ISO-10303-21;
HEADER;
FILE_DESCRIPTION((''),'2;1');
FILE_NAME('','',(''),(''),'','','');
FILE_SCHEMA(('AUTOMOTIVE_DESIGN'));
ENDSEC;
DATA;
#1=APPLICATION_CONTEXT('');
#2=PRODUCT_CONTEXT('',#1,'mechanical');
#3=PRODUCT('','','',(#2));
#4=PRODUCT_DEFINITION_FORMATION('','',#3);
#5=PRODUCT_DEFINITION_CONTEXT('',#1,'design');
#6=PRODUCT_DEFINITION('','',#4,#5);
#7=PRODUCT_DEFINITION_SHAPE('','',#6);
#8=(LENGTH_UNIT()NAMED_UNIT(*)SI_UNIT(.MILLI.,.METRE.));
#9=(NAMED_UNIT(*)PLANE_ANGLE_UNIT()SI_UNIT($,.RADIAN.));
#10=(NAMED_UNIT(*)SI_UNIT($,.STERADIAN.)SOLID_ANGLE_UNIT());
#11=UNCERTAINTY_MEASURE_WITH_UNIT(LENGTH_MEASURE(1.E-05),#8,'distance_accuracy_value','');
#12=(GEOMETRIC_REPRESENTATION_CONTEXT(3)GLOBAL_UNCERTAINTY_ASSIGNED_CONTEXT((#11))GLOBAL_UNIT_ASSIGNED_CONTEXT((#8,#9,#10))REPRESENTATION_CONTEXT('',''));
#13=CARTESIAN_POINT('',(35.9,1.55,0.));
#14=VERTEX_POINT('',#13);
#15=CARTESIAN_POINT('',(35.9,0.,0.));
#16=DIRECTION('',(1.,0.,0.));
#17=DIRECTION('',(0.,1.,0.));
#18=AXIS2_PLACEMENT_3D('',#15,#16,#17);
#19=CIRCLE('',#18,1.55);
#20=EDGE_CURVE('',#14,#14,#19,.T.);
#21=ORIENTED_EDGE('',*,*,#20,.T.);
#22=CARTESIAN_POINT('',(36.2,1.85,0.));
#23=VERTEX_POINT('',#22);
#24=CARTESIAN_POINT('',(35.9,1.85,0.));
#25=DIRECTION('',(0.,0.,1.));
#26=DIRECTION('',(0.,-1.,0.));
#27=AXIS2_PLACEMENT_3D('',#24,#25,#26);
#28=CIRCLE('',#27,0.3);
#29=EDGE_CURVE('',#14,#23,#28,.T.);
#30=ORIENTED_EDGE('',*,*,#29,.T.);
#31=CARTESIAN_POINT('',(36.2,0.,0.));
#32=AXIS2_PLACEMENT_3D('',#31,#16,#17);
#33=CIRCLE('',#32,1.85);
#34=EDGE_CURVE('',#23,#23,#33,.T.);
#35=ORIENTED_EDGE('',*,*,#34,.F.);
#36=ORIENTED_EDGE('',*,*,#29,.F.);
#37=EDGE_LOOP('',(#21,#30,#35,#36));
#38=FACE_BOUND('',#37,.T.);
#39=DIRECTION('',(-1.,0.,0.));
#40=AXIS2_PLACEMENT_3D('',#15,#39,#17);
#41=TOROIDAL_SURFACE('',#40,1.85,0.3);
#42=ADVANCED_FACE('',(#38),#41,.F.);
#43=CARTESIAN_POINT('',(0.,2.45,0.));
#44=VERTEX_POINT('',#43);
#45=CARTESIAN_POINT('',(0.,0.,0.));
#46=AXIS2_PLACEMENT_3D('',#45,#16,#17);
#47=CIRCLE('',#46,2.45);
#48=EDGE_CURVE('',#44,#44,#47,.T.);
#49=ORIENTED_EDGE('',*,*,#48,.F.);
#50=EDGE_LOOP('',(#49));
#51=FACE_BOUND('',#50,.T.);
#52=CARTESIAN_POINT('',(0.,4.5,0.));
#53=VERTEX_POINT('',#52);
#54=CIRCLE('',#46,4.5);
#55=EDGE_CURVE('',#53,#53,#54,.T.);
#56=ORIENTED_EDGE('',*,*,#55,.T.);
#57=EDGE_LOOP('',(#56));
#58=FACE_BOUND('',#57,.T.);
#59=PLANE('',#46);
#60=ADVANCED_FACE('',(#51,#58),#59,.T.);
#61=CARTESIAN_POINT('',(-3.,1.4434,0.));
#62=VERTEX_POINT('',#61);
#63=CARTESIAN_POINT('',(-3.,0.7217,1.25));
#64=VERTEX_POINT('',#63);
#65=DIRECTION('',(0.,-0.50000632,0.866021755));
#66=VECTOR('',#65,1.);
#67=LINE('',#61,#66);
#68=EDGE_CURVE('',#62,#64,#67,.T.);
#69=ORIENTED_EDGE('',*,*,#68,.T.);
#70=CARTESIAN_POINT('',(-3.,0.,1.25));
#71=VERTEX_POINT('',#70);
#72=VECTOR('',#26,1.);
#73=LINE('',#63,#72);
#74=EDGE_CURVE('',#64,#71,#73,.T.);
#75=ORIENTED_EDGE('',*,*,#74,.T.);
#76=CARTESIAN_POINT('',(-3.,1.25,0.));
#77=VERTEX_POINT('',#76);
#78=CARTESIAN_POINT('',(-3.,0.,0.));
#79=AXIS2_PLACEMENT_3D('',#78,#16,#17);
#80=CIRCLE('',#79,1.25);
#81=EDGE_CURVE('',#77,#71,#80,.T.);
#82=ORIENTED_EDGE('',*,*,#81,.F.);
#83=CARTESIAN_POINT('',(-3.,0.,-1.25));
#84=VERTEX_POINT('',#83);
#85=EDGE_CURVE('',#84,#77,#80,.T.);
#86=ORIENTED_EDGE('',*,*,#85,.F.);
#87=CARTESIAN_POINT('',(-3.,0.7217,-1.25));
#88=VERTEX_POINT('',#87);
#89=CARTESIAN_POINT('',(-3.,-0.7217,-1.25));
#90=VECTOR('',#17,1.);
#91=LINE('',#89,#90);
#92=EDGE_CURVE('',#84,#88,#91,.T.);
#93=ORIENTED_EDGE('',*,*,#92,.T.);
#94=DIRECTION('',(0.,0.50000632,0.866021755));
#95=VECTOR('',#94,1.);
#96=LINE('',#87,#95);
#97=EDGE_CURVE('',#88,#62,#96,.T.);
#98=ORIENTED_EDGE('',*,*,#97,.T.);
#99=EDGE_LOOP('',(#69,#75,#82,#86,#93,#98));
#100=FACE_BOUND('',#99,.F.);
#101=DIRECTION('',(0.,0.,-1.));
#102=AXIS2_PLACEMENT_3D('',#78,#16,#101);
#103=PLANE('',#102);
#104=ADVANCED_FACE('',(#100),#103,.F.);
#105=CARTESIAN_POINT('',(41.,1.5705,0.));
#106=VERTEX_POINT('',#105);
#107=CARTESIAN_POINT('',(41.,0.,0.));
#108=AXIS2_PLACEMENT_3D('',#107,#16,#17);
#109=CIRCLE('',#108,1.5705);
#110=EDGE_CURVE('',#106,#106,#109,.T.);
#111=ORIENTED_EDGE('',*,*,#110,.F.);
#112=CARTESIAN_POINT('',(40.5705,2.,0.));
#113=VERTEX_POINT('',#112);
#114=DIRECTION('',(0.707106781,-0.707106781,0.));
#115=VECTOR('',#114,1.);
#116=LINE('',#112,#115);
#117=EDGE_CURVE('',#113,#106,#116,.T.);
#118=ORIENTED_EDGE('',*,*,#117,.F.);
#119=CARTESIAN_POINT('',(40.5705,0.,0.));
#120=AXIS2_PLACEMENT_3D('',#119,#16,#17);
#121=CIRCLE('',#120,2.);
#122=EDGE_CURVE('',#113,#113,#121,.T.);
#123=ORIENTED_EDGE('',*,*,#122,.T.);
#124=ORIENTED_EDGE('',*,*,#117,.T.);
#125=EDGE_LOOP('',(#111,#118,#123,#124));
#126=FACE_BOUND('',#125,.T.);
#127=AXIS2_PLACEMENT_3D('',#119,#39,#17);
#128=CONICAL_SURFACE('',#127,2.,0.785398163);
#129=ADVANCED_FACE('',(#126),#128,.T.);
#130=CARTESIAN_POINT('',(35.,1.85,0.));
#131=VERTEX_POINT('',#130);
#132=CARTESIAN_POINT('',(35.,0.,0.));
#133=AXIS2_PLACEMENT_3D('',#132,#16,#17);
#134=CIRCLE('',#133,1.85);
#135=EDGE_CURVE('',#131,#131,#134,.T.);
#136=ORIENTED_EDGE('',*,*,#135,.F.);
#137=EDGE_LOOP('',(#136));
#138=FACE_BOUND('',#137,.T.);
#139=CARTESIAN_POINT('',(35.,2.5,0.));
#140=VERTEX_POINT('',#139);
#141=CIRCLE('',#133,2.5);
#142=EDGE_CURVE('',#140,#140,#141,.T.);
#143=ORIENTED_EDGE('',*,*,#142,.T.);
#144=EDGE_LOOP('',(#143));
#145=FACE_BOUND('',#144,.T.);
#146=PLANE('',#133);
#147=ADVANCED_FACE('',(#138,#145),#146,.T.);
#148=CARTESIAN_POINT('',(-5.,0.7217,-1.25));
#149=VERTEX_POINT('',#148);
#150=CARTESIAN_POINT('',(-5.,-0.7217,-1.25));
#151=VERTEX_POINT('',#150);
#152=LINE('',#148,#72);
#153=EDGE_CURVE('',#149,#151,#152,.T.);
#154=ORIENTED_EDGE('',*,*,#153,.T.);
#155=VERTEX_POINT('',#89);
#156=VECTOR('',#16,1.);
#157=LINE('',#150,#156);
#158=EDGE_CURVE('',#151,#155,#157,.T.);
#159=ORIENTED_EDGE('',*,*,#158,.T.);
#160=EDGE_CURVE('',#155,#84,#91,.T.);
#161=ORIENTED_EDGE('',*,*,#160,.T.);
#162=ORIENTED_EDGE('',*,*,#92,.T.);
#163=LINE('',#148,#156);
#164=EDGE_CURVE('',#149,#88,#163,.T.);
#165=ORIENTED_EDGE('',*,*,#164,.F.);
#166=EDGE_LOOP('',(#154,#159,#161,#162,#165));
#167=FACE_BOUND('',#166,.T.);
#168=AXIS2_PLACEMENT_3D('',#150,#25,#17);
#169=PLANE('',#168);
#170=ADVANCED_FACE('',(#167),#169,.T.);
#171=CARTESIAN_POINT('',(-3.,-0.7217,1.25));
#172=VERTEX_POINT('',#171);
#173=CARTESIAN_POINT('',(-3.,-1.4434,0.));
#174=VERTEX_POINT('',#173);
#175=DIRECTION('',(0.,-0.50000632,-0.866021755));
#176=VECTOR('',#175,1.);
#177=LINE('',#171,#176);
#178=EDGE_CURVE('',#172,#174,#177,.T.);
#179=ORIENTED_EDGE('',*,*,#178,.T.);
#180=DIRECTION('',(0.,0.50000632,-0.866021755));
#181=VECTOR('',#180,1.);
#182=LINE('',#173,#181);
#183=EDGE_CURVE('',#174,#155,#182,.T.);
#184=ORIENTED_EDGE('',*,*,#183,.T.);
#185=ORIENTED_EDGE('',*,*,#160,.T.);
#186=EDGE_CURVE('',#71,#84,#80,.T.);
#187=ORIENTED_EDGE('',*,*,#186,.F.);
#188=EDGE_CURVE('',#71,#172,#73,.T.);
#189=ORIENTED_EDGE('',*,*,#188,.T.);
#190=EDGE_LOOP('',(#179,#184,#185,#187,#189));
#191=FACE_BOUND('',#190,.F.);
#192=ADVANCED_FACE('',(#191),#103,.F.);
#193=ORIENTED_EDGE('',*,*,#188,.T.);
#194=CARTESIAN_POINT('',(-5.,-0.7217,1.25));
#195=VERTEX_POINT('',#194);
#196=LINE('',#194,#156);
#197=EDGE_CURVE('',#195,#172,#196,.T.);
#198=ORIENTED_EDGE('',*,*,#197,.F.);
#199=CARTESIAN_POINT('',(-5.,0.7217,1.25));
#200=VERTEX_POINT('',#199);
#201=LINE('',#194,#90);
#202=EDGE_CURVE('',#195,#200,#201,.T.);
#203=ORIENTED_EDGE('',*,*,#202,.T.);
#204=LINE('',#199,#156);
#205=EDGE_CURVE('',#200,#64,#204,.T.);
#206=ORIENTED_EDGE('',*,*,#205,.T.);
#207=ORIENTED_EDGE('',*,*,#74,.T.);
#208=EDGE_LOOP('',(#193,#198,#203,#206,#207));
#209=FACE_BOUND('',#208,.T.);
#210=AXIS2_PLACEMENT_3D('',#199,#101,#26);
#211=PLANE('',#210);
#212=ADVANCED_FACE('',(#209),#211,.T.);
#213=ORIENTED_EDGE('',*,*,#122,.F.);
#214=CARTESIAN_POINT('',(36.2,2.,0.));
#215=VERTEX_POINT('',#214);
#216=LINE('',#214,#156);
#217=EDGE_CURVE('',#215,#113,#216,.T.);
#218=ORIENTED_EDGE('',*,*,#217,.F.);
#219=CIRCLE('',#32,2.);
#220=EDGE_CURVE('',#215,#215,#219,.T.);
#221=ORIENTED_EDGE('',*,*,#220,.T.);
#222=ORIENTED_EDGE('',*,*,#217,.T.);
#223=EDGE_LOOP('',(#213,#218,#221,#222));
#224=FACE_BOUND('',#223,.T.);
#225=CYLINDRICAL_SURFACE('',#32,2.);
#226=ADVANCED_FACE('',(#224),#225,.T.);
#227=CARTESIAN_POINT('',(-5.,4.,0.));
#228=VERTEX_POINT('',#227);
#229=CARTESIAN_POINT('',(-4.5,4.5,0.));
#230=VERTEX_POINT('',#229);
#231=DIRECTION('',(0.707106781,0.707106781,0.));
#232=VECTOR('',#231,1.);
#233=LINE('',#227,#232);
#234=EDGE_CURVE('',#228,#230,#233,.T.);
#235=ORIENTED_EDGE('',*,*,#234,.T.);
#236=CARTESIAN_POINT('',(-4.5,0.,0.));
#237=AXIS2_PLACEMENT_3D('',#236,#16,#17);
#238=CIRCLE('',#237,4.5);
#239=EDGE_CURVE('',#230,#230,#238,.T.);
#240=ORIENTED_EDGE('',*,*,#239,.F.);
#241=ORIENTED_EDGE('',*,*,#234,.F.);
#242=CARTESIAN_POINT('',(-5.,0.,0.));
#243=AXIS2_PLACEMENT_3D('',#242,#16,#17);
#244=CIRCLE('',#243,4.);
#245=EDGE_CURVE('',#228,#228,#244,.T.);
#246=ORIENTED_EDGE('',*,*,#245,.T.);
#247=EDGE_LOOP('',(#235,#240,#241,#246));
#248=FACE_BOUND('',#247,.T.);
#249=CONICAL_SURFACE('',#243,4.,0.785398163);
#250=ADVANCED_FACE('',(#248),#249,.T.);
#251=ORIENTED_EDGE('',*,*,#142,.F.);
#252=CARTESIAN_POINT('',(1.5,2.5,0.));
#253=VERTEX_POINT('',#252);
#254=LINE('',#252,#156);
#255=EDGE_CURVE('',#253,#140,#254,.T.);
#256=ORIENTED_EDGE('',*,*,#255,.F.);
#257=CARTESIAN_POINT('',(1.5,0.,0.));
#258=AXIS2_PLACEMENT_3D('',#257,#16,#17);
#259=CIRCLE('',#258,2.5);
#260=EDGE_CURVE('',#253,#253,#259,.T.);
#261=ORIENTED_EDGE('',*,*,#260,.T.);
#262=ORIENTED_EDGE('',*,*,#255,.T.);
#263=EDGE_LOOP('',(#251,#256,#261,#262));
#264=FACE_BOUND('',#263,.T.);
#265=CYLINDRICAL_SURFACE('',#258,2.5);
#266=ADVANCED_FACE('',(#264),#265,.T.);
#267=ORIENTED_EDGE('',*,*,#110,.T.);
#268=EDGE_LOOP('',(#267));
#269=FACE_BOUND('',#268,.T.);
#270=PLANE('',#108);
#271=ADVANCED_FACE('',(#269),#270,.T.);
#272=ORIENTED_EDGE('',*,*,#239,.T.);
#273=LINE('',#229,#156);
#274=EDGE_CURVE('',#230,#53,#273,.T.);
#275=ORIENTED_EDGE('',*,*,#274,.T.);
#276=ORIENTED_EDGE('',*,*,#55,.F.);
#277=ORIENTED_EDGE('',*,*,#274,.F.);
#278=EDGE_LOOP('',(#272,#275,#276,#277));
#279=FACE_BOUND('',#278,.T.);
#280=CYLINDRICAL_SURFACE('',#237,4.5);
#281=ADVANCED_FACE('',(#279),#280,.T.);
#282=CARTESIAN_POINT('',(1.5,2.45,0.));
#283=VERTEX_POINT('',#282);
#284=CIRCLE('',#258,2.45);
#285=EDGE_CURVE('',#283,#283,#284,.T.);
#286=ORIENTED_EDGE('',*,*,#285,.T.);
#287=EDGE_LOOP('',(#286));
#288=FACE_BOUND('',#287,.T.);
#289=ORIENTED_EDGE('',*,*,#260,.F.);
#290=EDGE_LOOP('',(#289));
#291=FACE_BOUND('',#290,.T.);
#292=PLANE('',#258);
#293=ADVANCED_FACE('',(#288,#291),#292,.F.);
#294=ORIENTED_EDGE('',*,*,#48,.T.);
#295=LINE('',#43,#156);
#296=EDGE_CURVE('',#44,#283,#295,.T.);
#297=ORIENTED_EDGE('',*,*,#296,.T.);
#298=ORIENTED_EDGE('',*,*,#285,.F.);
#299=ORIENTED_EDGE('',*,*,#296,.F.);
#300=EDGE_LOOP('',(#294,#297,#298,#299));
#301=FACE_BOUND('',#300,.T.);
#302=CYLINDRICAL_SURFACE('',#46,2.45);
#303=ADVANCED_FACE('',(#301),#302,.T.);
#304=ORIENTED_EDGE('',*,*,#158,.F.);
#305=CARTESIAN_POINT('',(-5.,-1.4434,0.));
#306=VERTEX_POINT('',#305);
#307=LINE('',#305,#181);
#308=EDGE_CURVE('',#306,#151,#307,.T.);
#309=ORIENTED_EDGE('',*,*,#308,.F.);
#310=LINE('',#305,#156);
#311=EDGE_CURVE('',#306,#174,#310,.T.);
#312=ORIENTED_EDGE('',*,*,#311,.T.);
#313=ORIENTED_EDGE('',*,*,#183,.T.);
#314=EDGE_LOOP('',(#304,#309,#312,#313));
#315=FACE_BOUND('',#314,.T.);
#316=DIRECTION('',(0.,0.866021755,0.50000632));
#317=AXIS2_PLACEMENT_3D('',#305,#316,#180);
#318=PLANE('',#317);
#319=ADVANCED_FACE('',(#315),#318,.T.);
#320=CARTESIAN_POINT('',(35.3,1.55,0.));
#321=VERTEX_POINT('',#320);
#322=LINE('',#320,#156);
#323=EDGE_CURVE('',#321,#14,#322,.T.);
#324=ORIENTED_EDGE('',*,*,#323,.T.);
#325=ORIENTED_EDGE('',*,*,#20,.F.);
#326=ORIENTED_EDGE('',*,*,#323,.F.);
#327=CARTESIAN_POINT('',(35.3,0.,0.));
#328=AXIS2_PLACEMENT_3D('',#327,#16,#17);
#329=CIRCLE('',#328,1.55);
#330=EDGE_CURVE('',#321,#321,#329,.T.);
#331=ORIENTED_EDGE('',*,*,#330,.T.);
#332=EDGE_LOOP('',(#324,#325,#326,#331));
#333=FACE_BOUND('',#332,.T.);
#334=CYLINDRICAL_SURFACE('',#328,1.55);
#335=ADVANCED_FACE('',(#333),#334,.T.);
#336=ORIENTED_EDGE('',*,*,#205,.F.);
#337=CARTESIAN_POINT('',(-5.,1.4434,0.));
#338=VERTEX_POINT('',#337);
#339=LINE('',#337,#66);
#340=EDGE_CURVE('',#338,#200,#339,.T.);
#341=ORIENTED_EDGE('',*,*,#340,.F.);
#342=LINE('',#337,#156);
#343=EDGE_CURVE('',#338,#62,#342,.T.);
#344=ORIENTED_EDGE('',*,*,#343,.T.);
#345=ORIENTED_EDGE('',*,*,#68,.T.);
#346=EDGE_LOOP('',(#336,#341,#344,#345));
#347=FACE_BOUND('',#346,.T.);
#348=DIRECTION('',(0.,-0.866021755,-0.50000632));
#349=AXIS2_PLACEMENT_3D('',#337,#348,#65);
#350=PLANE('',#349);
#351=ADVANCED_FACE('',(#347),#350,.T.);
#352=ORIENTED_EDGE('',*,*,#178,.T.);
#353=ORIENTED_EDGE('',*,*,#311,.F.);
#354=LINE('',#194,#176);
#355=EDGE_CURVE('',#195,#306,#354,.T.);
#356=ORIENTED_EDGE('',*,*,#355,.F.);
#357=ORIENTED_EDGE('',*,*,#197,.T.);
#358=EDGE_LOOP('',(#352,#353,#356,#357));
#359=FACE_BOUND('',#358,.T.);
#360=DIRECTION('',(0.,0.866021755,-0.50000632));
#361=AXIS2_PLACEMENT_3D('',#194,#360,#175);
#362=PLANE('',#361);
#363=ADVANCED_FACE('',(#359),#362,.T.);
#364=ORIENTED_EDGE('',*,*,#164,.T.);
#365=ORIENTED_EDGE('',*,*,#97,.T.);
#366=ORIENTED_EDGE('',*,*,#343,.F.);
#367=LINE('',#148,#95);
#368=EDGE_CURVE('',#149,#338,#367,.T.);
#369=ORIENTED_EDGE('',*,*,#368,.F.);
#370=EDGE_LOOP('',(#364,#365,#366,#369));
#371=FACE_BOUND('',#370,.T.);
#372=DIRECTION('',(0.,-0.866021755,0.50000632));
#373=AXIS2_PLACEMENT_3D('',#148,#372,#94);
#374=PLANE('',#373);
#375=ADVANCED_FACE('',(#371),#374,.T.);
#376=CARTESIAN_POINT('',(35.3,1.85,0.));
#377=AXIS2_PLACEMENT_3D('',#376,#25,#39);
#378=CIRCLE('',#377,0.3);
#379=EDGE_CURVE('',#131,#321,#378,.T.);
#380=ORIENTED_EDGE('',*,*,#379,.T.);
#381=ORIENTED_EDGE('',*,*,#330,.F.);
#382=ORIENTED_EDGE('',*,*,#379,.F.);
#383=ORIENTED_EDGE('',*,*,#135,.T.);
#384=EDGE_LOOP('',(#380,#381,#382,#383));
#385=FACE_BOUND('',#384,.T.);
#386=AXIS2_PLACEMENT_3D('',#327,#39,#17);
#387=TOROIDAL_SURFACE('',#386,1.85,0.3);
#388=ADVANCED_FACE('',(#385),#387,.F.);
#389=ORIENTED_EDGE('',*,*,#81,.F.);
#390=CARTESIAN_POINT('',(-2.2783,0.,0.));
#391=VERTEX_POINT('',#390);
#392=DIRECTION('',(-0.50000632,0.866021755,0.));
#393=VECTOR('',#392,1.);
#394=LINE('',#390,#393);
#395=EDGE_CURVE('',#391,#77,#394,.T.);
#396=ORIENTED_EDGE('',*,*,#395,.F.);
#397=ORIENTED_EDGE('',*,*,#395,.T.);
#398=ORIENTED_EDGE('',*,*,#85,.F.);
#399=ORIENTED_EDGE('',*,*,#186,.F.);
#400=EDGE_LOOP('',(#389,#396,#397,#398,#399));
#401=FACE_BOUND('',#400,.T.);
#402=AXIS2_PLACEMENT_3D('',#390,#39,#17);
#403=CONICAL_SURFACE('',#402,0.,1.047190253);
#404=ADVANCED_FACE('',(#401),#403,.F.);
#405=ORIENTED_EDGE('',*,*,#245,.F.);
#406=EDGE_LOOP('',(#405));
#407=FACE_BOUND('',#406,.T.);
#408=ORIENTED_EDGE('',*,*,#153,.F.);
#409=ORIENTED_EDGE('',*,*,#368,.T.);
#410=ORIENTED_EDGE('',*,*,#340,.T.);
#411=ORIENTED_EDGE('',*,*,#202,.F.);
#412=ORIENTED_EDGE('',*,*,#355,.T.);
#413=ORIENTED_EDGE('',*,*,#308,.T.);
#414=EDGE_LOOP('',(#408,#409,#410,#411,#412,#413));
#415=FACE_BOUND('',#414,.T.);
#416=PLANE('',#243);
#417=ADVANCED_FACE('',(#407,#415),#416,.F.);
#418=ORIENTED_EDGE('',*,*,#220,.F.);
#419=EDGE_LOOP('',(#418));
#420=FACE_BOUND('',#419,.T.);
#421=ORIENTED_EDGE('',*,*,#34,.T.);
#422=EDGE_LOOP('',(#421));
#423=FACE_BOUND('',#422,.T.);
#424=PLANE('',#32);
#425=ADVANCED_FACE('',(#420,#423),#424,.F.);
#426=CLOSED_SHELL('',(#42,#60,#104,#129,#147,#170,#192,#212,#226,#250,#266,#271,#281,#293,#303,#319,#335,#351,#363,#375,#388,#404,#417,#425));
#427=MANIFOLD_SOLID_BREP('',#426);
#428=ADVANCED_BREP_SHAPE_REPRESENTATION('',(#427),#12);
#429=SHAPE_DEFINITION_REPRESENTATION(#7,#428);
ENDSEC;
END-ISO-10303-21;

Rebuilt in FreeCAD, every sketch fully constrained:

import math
import FreeCAD as App
import Part
import Sketcher
from FreeCAD import Vector
Q = App.Units.Quantity

doc = App.newDocument("Part")
body = doc.addObject("PartDesign::Body", "Body")

# Sketch on XY plane
sketch1 = body.newObject("Sketcher::SketchObject", "Sketch")
sketch1.AttachmentSupport = (doc.getObject("XY_Plane"), [""])
sketch1.MapMode = "FlatFace"
sketch1.addGeometry([
    Part.LineSegment(Vector(-2.278, 0, 0), Vector(41, 0, 0)),  # 0
    Part.LineSegment(Vector(41, 0, 0), Vector(41, 1.571, 0)),  # 1
    Part.LineSegment(Vector(41, 1.571, 0), Vector(40.571, 2, 0)),  # 2
    Part.LineSegment(Vector(40.571, 2, 0), Vector(36.2, 2, 0)),  # 3
    Part.LineSegment(Vector(36.2, 2, 0), Vector(36.2, 1.85, 0)),  # 4
    Part.ArcOfCircle(Part.Circle(Vector(35.9, 1.85, 0), Vector(0, 0, 1), 0.3), math.radians(-90), math.radians(0)),  # 5
    Part.LineSegment(Vector(35.9, 1.55, 0), Vector(35.3, 1.55, 0)),  # 6
    Part.ArcOfCircle(Part.Circle(Vector(35.3, 1.85, 0), Vector(0, 0, 1), 0.3), math.radians(180), math.radians(270)),  # 7
    Part.LineSegment(Vector(35, 1.85, 0), Vector(35, 2.5, 0)),  # 8
    Part.LineSegment(Vector(35, 2.5, 0), Vector(1.5, 2.5, 0)),  # 9
    Part.LineSegment(Vector(1.5, 2.5, 0), Vector(1.5, 2.45, 0)),  # 10
    Part.LineSegment(Vector(1.5, 2.45, 0), Vector(0, 2.45, 0)),  # 11
    Part.LineSegment(Vector(0, 2.45, 0), Vector(0, 4.5, 0)),  # 12
    Part.LineSegment(Vector(0, 4.5, 0), Vector(-4.5, 4.5, 0)),  # 13
    Part.LineSegment(Vector(-4.5, 4.5, 0), Vector(-5, 4, 0)),  # 14
    Part.LineSegment(Vector(-5, 4, 0), Vector(-5, 1.25, 0)),  # 15
    Part.LineSegment(Vector(-5, 1.25, 0), Vector(-3, 1.25, 0)),  # 16
    Part.LineSegment(Vector(-3, 1.25, 0), Vector(-2.278, 0, 0)),  # 17
], False)
sketch1.addConstraint([
    Sketcher.Constraint("Coincident", 0, 2, 1, 1),
    Sketcher.Constraint("Coincident", 1, 2, 2, 1),
    Sketcher.Constraint("Coincident", 2, 2, 3, 1),
    Sketcher.Constraint("Coincident", 3, 2, 4, 1),
    Sketcher.Constraint("Tangent", 4, 2, 5, 2),
    Sketcher.Constraint("Tangent", 5, 1, 6, 1),
    Sketcher.Constraint("Tangent", 6, 2, 7, 2),
    Sketcher.Constraint("Tangent", 7, 1, 8, 1),
    Sketcher.Constraint("Coincident", 8, 2, 9, 1),
    Sketcher.Constraint("Coincident", 9, 2, 10, 1),
    Sketcher.Constraint("Coincident", 10, 2, 11, 1),
    Sketcher.Constraint("Coincident", 11, 2, 12, 1),
    Sketcher.Constraint("Coincident", 12, 2, 13, 1),
    Sketcher.Constraint("Coincident", 13, 2, 14, 1),
    Sketcher.Constraint("Coincident", 14, 2, 15, 1),
    Sketcher.Constraint("Coincident", 15, 2, 16, 1),
    Sketcher.Constraint("Coincident", 16, 2, 17, 1),
    Sketcher.Constraint("Coincident", 17, 2, 0, 1),
    Sketcher.Constraint("Horizontal", 0),
    Sketcher.Constraint("Vertical", 1),
    Sketcher.Constraint("Horizontal", 3),
    Sketcher.Constraint("Vertical", 4),
    Sketcher.Constraint("Horizontal", 6),
    Sketcher.Constraint("Vertical", 8),
    Sketcher.Constraint("Horizontal", 9),
    Sketcher.Constraint("Vertical", 10),
    Sketcher.Constraint("Horizontal", 11),
    Sketcher.Constraint("Vertical", 12),
    Sketcher.Constraint("Horizontal", 13),
    Sketcher.Constraint("Vertical", 15),
    Sketcher.Constraint("Horizontal", 16),
    Sketcher.Constraint("Equal", 5, 7),
    Sketcher.Constraint("PointOnObject", 0, 2, -1),
    Sketcher.Constraint("PointOnObject", 11, 2, -2),
    Sketcher.Constraint("Perpendicular", 2, 14),
    Sketcher.Constraint("Radius", 5, Q("0.3 mm")),
    Sketcher.Constraint("DistanceX", 16, 1, 16, 2, Q("2 mm")),
    Sketcher.Constraint("Angle", 2, Q("135 deg")),
    Sketcher.Constraint("Angle", 17, Q("-59.9996 deg")),
    Sketcher.Constraint("DistanceX", 6, 2, 6, 1, Q("0.6 mm")),
    Sketcher.Constraint("DistanceX", 9, 2, 9, 1, Q("33.5 mm")),
    Sketcher.Constraint("DistanceX", 11, 2, 11, 1, Q("1.5 mm")),
    Sketcher.Constraint("DistanceX", 13, 2, 13, 1, Q("4.5 mm")),
    Sketcher.Constraint("DistanceX", -1, 1, 0, 2, Q("41 mm")),
    Sketcher.Constraint("DistanceY", -1, 1, 2, 2, Q("2 mm")),
    Sketcher.Constraint("DistanceX", 14, 2, -1, 1, Q("5 mm")),
    Sketcher.Constraint("DistanceY", -1, 1, 14, 2, Q("4 mm")),
    Sketcher.Constraint("DistanceY", 9, 2, 12, 2, Q("2 mm")),
    Sketcher.Constraint("DistanceY", 4, 2, 4, 1, Q("0.15 mm")),
    Sketcher.Constraint("DistanceY", 10, 2, 10, 1, Q("0.05 mm")),
    Sketcher.Constraint("DistanceY", 15, 2, 15, 1, Q("2.75 mm")),
    Sketcher.Constraint("DistanceX", 3, 2, 3, 1, Q("4.3705 mm")),
])
revolution = body.newObject("PartDesign::Revolution", "Revolution")
revolution.Profile = sketch1
revolution.ReferenceAxis = (sketch1, ["H_Axis"])
revolution.Angle = 360

# Sketch on YZ plane
sketch2 = body.newObject("Sketcher::SketchObject", "Sketch001")
sketch2.AttachmentSupport = (doc.getObject("YZ_Plane"), [""])
sketch2.MapMode = "FlatFace"
sketch2.AttachmentOffset = App.Placement(Vector(0, 0, -5), App.Rotation())
sketch2.addGeometry([
    Part.LineSegment(Vector(0.7, 1.2, 0), Vector(-0.7, 1.2, 0)),  # 0
    Part.LineSegment(Vector(-0.7, 1.2, 0), Vector(-1.4, 0, 0)),  # 1
    Part.LineSegment(Vector(-1.4, 0, 0), Vector(-0.7, -1.2, 0)),  # 2
    Part.LineSegment(Vector(-0.7, -1.2, 0), Vector(0.7, -1.2, 0)),  # 3
    Part.LineSegment(Vector(0.7, -1.2, 0), Vector(1.4, 0, 0)),  # 4
    Part.LineSegment(Vector(1.4, 0, 0), Vector(0.7, 1.2, 0)),  # 5
], False)
sketch2.addConstraint([
    Sketcher.Constraint("Coincident", 0, 2, 1, 1),
    Sketcher.Constraint("Coincident", 1, 2, 2, 1),
    Sketcher.Constraint("Coincident", 2, 2, 3, 1),
    Sketcher.Constraint("Coincident", 3, 2, 4, 1),
    Sketcher.Constraint("Coincident", 4, 2, 5, 1),
    Sketcher.Constraint("Coincident", 5, 2, 0, 1),
    Sketcher.Constraint("Horizontal", 0),
    Sketcher.Constraint("Horizontal", 3),
    Sketcher.Constraint("Symmetric", 0, 2, 3, 2, -1, 1),
    Sketcher.Constraint("Symmetric", 1, 2, 4, 2, -1, 1),
    Sketcher.Constraint("PointOnObject", 1, 2, -1),
    Sketcher.Constraint("Parallel", 2, 5),
    Sketcher.Constraint("Vertical", 0, 2, 2, 2),
    Sketcher.Constraint("Angle", 1, Q("-120.0004 deg")),
    Sketcher.Constraint("DistanceY", 2, 2, 0, 2, Q("2.5 mm")),
    Sketcher.Constraint("DistanceX", 0, 2, 0, 1, Q("1.4434 mm")),
])
pocket1 = body.newObject("PartDesign::Pocket", "Pocket")
pocket1.Profile = sketch2
pocket1.Length = 2
pocket1.Reversed = True

doc.recompute()
